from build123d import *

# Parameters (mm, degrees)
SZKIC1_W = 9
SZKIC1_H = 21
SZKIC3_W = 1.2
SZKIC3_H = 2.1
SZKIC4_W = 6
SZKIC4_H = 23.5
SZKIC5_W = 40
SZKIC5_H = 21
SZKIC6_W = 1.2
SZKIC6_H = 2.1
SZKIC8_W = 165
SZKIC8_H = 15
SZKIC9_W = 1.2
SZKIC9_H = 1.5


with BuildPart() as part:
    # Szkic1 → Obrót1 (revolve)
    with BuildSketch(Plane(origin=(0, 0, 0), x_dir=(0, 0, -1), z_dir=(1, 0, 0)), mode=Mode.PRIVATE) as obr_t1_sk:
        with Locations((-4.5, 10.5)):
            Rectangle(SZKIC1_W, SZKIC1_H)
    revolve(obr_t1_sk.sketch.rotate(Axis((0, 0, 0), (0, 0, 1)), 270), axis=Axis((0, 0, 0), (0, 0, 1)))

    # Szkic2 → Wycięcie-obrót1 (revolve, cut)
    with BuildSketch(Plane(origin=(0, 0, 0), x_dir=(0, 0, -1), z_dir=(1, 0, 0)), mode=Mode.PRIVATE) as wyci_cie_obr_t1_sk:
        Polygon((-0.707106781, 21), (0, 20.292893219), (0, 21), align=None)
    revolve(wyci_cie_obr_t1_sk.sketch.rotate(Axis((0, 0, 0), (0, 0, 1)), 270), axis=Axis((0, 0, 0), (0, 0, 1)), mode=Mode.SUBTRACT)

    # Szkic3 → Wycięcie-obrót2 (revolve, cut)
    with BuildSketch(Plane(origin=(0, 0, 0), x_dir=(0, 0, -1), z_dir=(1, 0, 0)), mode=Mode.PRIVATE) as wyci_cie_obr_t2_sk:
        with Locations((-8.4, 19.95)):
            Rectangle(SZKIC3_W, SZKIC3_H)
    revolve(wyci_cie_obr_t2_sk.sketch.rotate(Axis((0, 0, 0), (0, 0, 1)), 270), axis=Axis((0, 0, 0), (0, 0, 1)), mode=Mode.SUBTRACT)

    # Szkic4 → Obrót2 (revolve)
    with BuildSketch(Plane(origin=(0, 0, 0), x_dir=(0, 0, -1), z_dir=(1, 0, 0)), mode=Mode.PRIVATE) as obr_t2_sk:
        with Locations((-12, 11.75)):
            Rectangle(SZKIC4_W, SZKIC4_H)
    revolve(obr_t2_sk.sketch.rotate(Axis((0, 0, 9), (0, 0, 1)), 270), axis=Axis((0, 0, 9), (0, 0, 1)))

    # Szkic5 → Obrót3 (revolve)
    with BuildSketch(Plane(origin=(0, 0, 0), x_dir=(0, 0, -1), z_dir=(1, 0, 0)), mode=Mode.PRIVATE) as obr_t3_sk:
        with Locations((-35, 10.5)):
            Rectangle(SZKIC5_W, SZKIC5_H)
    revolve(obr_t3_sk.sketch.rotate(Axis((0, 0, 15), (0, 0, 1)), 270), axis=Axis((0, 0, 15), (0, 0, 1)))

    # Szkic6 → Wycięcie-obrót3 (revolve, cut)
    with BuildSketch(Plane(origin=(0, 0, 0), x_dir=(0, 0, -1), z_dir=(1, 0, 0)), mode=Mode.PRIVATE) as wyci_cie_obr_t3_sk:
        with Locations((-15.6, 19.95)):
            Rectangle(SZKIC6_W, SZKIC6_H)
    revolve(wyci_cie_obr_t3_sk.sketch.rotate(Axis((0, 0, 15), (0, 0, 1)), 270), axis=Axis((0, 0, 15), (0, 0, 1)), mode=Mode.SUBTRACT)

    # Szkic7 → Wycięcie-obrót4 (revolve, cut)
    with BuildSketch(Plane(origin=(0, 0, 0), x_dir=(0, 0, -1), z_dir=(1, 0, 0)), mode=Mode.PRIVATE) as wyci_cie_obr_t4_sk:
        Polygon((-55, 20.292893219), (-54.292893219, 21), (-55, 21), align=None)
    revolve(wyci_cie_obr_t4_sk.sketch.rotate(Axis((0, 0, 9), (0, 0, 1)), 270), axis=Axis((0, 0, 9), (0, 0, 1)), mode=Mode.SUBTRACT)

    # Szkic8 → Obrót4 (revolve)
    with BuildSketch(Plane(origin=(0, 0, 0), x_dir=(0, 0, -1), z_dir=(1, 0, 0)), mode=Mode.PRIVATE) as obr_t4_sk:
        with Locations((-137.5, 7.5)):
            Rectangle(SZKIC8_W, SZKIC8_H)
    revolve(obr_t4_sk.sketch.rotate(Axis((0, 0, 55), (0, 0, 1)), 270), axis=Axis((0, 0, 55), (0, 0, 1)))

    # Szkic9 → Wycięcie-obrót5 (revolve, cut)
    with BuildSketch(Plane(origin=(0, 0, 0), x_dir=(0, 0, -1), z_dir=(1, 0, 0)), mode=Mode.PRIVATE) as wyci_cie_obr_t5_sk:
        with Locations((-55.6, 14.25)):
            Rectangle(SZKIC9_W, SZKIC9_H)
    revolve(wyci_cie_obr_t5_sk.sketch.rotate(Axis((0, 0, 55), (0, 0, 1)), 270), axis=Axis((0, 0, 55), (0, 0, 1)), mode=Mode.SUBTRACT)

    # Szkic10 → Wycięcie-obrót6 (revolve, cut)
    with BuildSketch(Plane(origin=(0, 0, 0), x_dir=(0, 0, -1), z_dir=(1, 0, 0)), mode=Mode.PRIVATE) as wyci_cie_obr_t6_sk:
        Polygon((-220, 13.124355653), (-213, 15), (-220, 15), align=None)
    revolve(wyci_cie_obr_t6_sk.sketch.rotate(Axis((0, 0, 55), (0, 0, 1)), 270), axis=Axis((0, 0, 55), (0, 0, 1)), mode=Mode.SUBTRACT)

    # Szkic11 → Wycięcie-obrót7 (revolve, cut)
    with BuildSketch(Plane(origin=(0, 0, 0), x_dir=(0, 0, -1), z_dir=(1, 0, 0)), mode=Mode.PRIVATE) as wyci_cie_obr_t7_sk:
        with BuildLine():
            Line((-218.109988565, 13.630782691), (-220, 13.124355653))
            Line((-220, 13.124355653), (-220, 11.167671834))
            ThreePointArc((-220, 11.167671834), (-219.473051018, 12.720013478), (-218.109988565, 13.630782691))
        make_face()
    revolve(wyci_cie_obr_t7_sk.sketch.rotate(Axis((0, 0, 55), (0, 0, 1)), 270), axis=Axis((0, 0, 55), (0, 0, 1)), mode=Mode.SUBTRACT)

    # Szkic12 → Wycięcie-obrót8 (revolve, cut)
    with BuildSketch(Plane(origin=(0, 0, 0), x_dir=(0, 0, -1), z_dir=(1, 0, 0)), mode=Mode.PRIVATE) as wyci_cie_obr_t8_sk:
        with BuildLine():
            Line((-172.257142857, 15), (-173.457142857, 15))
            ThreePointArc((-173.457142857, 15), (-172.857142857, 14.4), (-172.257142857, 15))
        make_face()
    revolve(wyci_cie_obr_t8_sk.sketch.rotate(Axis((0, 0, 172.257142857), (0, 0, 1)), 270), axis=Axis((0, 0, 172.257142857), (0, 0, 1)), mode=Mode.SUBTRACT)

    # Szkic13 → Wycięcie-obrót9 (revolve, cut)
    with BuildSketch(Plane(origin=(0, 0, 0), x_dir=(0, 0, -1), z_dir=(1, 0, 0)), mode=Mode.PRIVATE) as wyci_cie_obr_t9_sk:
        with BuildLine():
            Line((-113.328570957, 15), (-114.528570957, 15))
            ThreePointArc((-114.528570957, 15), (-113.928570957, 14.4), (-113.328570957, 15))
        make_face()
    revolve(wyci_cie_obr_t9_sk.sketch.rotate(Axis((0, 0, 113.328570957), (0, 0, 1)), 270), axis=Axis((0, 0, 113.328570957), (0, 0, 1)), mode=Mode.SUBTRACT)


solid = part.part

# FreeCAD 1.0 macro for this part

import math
import FreeCAD as App
import Part
import Sketcher
from FreeCAD import Vector
Q = App.Units.Quantity


def add_polygon(sketch, points):
    """Adds a closed chain of lines whose ends are joined by coincident constraints."""
    first, n = sketch.GeometryCount, len(points)
    for a, b in zip(points, points[1:] + points[:1]):
        sketch.addGeometry(Part.LineSegment(App.Vector(*a, 0), App.Vector(*b, 0)), False)
    for i in range(n):
        sketch.addConstraint(Sketcher.Constraint("Coincident", first + i, 2, first + (i + 1) % n, 1))

doc = App.newDocument("Part")
body = doc.addObject("PartDesign::Body", "Body")

# Sketch on YZ plane
sketch1 = body.newObject("Sketcher::SketchObject", "Sketch")
sketch1.AttachmentSupport = (doc.getObject("YZ_Plane"), [""])
sketch1.MapMode = "FlatFace"
add_polygon(sketch1, [(21, 9), (0, 9), (0, 0), (21, 0)])  # lines 0-3
sketch1.addConstraint(Sketcher.Constraint("Horizontal", 0))
sketch1.addConstraint(Sketcher.Constraint("Vertical", 1))
sketch1.addConstraint(Sketcher.Constraint("Horizontal", 2))
sketch1.addConstraint(Sketcher.Constraint("Vertical", 3))
sketch1.addConstraint(Sketcher.Constraint("Coincident", 1, 2, -1, 1))
sketch1.addConstraint(Sketcher.Constraint("DistanceX", 0, 2, 0, 1, Q("21 mm")))
sketch1.addConstraint(Sketcher.Constraint("DistanceY", 1, 2, 1, 1, Q("9 mm")))
revolution = body.newObject("PartDesign::Revolution", "Revolution")
revolution.Profile = sketch1
revolution.ReferenceAxis = (sketch1, ["V_Axis"])
revolution.Angle = 360

# Sketch on YZ plane
sketch2 = body.newObject("Sketcher::SketchObject", "Sketch001")
sketch2.AttachmentSupport = (doc.getObject("YZ_Plane"), [""])
sketch2.MapMode = "FlatFace"
add_polygon(sketch2, [(21, 0.707107), (20.292893, 0), (21, 0)])  # lines 0-2
sketch2.addConstraint(Sketcher.Constraint("Horizontal", 1))
sketch2.addConstraint(Sketcher.Constraint("Vertical", 2))
sketch2.addConstraint(Sketcher.Constraint("PointOnObject", 0, 2, -1))
sketch2.addConstraint(Sketcher.Constraint("Equal", 1, 2))
sketch2.addConstraint(Sketcher.Constraint("Distance", 0, Q("1 mm")))
sketch2.addConstraint(Sketcher.Constraint("DistanceX", -1, 1, 1, 2, Q("21 mm")))
groove = body.newObject("PartDesign::Groove", "Groove")
groove.Profile = sketch2
groove.ReferenceAxis = (sketch2, ["V_Axis"])
groove.Angle = 360

# Sketch on YZ plane
sketch3 = body.newObject("Sketcher::SketchObject", "Sketch002")
sketch3.AttachmentSupport = (doc.getObject("YZ_Plane"), [""])
sketch3.MapMode = "FlatFace"
add_polygon(sketch3, [(21, 9), (18.9, 9), (18.9, 7.8), (21, 7.8)])  # lines 0-3
sketch3.addConstraint(Sketcher.Constraint("Horizontal", 0))
sketch3.addConstraint(Sketcher.Constraint("Vertical", 1))
sketch3.addConstraint(Sketcher.Constraint("Horizontal", 2))
sketch3.addConstraint(Sketcher.Constraint("Vertical", 3))
sketch3.addConstraint(Sketcher.Constraint("DistanceX", 0, 2, 0, 1, Q("2.1 mm")))
sketch3.addConstraint(Sketcher.Constraint("DistanceY", 1, 2, 1, 1, Q("1.2 mm")))
sketch3.addConstraint(Sketcher.Constraint("DistanceY", -1, 1, 0, 2, Q("9 mm")))
sketch3.addConstraint(Sketcher.Constraint("DistanceX", -1, 1, 2, 2, Q("21 mm")))
groove2 = body.newObject("PartDesign::Groove", "Groove001")
groove2.Profile = sketch3
groove2.ReferenceAxis = (sketch3, ["V_Axis"])
groove2.Angle = 360

# Sketch on YZ plane
sketch4 = body.newObject("Sketcher::SketchObject", "Sketch003")
sketch4.AttachmentSupport = (doc.getObject("YZ_Plane"), [""])
sketch4.MapMode = "FlatFace"
add_polygon(sketch4, [(23.5, 15), (0, 15), (0, 9), (23.5, 9)])  # lines 0-3
sketch4.addConstraint(Sketcher.Constraint("Horizontal", 0))
sketch4.addConstraint(Sketcher.Constraint("Vertical", 1))
sketch4.addConstraint(Sketcher.Constraint("Horizontal", 2))
sketch4.addConstraint(Sketcher.Constraint("Vertical", 3))
sketch4.addConstraint(Sketcher.Constraint("PointOnObject", 0, 2, -2))
sketch4.addConstraint(Sketcher.Constraint("DistanceY", 1, 2, 1, 1, Q("6 mm")))
sketch4.addConstraint(Sketcher.Constraint("DistanceX", 0, 2, 0, 1, Q("23.5 mm")))
sketch4.addConstraint(Sketcher.Constraint("DistanceY", -1, 1, 0, 2, Q("15 mm")))
revolution2 = body.newObject("PartDesign::Revolution", "Revolution001")
revolution2.Profile = sketch4
revolution2.ReferenceAxis = (sketch4, ["V_Axis"])
revolution2.Angle = 360

# Sketch on YZ plane
sketch5 = body.newObject("Sketcher::SketchObject", "Sketch004")
sketch5.AttachmentSupport = (doc.getObject("YZ_Plane"), [""])
sketch5.MapMode = "FlatFace"
add_polygon(sketch5, [(21, 55), (0, 55), (0, 15), (21, 15)])  # lines 0-3
sketch5.addConstraint(Sketcher.Constraint("Horizontal", 0))
sketch5.addConstraint(Sketcher.Constraint("Vertical", 1))
sketch5.addConstraint(Sketcher.Constraint("Horizontal", 2))
sketch5.addConstraint(Sketcher.Constraint("Vertical", 3))
sketch5.addConstraint(Sketcher.Constraint("PointOnObject", 0, 2, -2))
sketch5.addConstraint(Sketcher.Constraint("DistanceX", 0, 2, 0, 1, Q("21 mm")))
sketch5.addConstraint(Sketcher.Constraint("DistanceY", 1, 2, 1, 1, Q("40 mm")))
sketch5.addConstraint(Sketcher.Constraint("DistanceY", -1, 1, 0, 2, Q("55 mm")))
revolution3 = body.newObject("PartDesign::Revolution", "Revolution002")
revolution3.Profile = sketch5
revolution3.ReferenceAxis = (sketch5, ["V_Axis"])
revolution3.Angle = 360

# Sketch on YZ plane
sketch6 = body.newObject("Sketcher::SketchObject", "Sketch005")
sketch6.AttachmentSupport = (doc.getObject("YZ_Plane"), [""])
sketch6.MapMode = "FlatFace"
add_polygon(sketch6, [(21, 16.2), (18.9, 16.2), (18.9, 15), (21, 15)])  # lines 0-3
sketch6.addConstraint(Sketcher.Constraint("Horizontal", 0))
sketch6.addConstraint(Sketcher.Constraint("Vertical", 1))
sketch6.addConstraint(Sketcher.Constraint("Horizontal", 2))
sketch6.addConstraint(Sketcher.Constraint("Vertical", 3))
sketch6.addConstraint(Sketcher.Constraint("DistanceX", 0, 2, 0, 1, Q("2.1 mm")))
sketch6.addConstraint(Sketcher.Constraint("DistanceY", 1, 2, 1, 1, Q("1.2 mm")))
sketch6.addConstraint(Sketcher.Constraint("DistanceY", -1, 1, 1, 2, Q("15 mm")))
sketch6.addConstraint(Sketcher.Constraint("DistanceX", -1, 1, 2, 2, Q("21 mm")))
groove3 = body.newObject("PartDesign::Groove", "Groove002")
groove3.Profile = sketch6
groove3.ReferenceAxis = (sketch6, ["V_Axis"])
groove3.Angle = 360

# Sketch on YZ plane
sketch7 = body.newObject("Sketcher::SketchObject", "Sketch006")
sketch7.AttachmentSupport = (doc.getObject("YZ_Plane"), [""])
sketch7.MapMode = "FlatFace"
add_polygon(sketch7, [(20.292893, 55), (21, 54.292893), (21, 55)])  # lines 0-2
sketch7.addConstraint(Sketcher.Constraint("Vertical", 1))
sketch7.addConstraint(Sketcher.Constraint("Horizontal", 2))
sketch7.addConstraint(Sketcher.Constraint("Equal", 2, 1))
sketch7.addConstraint(Sketcher.Constraint("Distance", 0, Q("1 mm")))
sketch7.addConstraint(Sketcher.Constraint("DistanceX", -1, 1, 0, 2, Q("21 mm")))
sketch7.addConstraint(Sketcher.Constraint("DistanceY", -1, 1, 1, 2, Q("55 mm")))
groove4 = body.newObject("PartDesign::Groove", "Groove003")
groove4.Profile = sketch7
groove4.ReferenceAxis = (sketch7, ["V_Axis"])
groove4.Angle = 360

# Sketch on YZ plane
sketch8 = body.newObject("Sketcher::SketchObject", "Sketch007")
sketch8.AttachmentSupport = (doc.getObject("YZ_Plane"), [""])
sketch8.MapMode = "FlatFace"
add_polygon(sketch8, [(15, 220), (0, 220), (0, 55), (15, 55)])  # lines 0-3
sketch8.addConstraint(Sketcher.Constraint("Horizontal", 0))
sketch8.addConstraint(Sketcher.Constraint("Vertical", 1))
sketch8.addConstraint(Sketcher.Constraint("Horizontal", 2))
sketch8.addConstraint(Sketcher.Constraint("Vertical", 3))
sketch8.addConstraint(Sketcher.Constraint("PointOnObject", 0, 2, -2))
sketch8.addConstraint(Sketcher.Constraint("DistanceX", 0, 2, 0, 1, Q("15 mm")))
sketch8.addConstraint(Sketcher.Constraint("DistanceY", 1, 2, 1, 1, Q("165 mm")))
sketch8.addConstraint(Sketcher.Constraint("DistanceY", -1, 1, 0, 2, Q("220 mm")))
revolution4 = body.newObject("PartDesign::Revolution", "Revolution003")
revolution4.Profile = sketch8
revolution4.ReferenceAxis = (sketch8, ["V_Axis"])
revolution4.Angle = 360

# Sketch on YZ plane
sketch9 = body.newObject("Sketcher::SketchObject", "Sketch008")
sketch9.AttachmentSupport = (doc.getObject("YZ_Plane"), [""])
sketch9.MapMode = "FlatFace"
add_polygon(sketch9, [(15, 56.2), (13.5, 56.2), (13.5, 55), (15, 55)])  # lines 0-3
sketch9.addConstraint(Sketcher.Constraint("Horizontal", 0))
sketch9.addConstraint(Sketcher.Constraint("Vertical", 1))
sketch9.addConstraint(Sketcher.Constraint("Horizontal", 2))
sketch9.addConstraint(Sketcher.Constraint("Vertical", 3))
sketch9.addConstraint(Sketcher.Constraint("DistanceX", 0, 2, 0, 1, Q("1.5 mm")))
sketch9.addConstraint(Sketcher.Constraint("DistanceY", 1, 2, 1, 1, Q("1.2 mm")))
sketch9.addConstraint(Sketcher.Constraint("DistanceY", -1, 1, 1, 2, Q("55 mm")))
sketch9.addConstraint(Sketcher.Constraint("DistanceX", -1, 1, 2, 2, Q("15 mm")))
groove5 = body.newObject("PartDesign::Groove", "Groove004")
groove5.Profile = sketch9
groove5.ReferenceAxis = (sketch9, ["V_Axis"])
groove5.Angle = 360

# Sketch on YZ plane
sketch10 = body.newObject("Sketcher::SketchObject", "Sketch009")
sketch10.AttachmentSupport = (doc.getObject("YZ_Plane"), [""])
sketch10.MapMode = "FlatFace"
add_polygon(sketch10, [(13.124356, 220), (15, 213), (15, 220)])  # lines 0-2
sketch10.addConstraint(Sketcher.Constraint("Vertical", 1))
sketch10.addConstraint(Sketcher.Constraint("Horizontal", 2))
sketch10.addConstraint(Sketcher.Constraint("DistanceY", 1, 1, 1, 2, Q("7 mm")))
sketch10.addConstraint(Sketcher.Constraint("Angle", 0, Q("-75 deg")))
sketch10.addConstraint(Sketcher.Constraint("DistanceX", -1, 1, 0, 2, Q("15 mm")))
sketch10.addConstraint(Sketcher.Constraint("DistanceY", -1, 1, 0, 2, Q("213 mm")))
groove6 = body.newObject("PartDesign::Groove", "Groove005")
groove6.Profile = sketch10
groove6.ReferenceAxis = (sketch10, ["V_Axis"])
groove6.Angle = 360

# Sketch on YZ plane
sketch11 = body.newObject("Sketcher::SketchObject", "Sketch010")
sketch11.AttachmentSupport = (doc.getObject("YZ_Plane"), [""])
sketch11.MapMode = "FlatFace"
sketch11.addGeometry(Part.LineSegment(Vector(13.630783, 218.109989, 0), Vector(13.124356, 220, 0)), False)
sketch11.addGeometry(Part.LineSegment(Vector(13.124356, 220, 0), Vector(11.167672, 220, 0)), False)
sketch11.addGeometry(Part.ArcOfCircle(Part.Circle(Vector(11.167672, 217.45, 0), Vector(0, 0, 1), 2.55), math.radians(15), math.radians(90)), False)
sketch11.addConstraint(Sketcher.Constraint("Coincident", 0, 2, 1, 1))
sketch11.addConstraint(Sketcher.Constraint("Tangent", 1, 2, 2, 2))
sketch11.addConstraint(Sketcher.Constraint("Tangent", 2, 1, 0, 1))
sketch11.addConstraint(Sketcher.Constraint("Horizontal", 1))
sketch11.addConstraint(Sketcher.Constraint("Angle", 0, Q("105 deg")))
sketch11.addConstraint(Sketcher.Constraint("Radius", 2, Q("2.55 mm")))
sketch11.addConstraint(Sketcher.Constraint("DistanceY", -1, 1, 0, 2, Q("220 mm")))
sketch11.addConstraint(Sketcher.Constraint("DistanceX", -1, 1, 2, 3, Q("11.167672 mm")))
groove7 = body.newObject("PartDesign::Groove", "Groove006")
groove7.Profile = sketch11
groove7.ReferenceAxis = (sketch11, ["V_Axis"])
groove7.Angle = 360

# Sketch on YZ plane
sketch12 = body.newObject("Sketcher::SketchObject", "Sketch011")
sketch12.AttachmentSupport = (doc.getObject("YZ_Plane"), [""])
sketch12.MapMode = "FlatFace"
sketch12.addGeometry(Part.LineSegment(Vector(15, 172.257143, 0), Vector(15, 173.457143, 0)), False)
sketch12.addGeometry(Part.ArcOfCircle(Part.Circle(Vector(15, 172.857143, 0), Vector(0, 0, 1), 0.6), math.radians(90), math.radians(270)), False)
sketch12.addConstraint(Sketcher.Constraint("Coincident", 0, 1, 1, 2))
sketch12.addConstraint(Sketcher.Constraint("Coincident", 1, 1, 0, 2))
sketch12.addConstraint(Sketcher.Constraint("Vertical", 0))
sketch12.addConstraint(Sketcher.Constraint("Vertical", 1, 3, 0, 1))
sketch12.addConstraint(Sketcher.Constraint("Radius", 1, Q("0.6 mm")))
sketch12.addConstraint(Sketcher.Constraint("DistanceX", -1, 1, 1, 3, Q("15 mm")))
sketch12.addConstraint(Sketcher.Constraint("DistanceY", -1, 1, 1, 3, Q("172.857143 mm")))
groove8 = body.newObject("PartDesign::Groove", "Groove007")
groove8.Profile = sketch12
groove8.ReferenceAxis = (sketch12, ["V_Axis"])
groove8.Angle = 360

# Sketch on YZ plane
sketch13 = body.newObject("Sketcher::SketchObject", "Sketch012")
sketch13.AttachmentSupport = (doc.getObject("YZ_Plane"), [""])
sketch13.MapMode = "FlatFace"
sketch13.addGeometry(Part.LineSegment(Vector(15, 113.328571, 0), Vector(15, 114.528571, 0)), False)
sketch13.addGeometry(Part.ArcOfCircle(Part.Circle(Vector(15, 113.928571, 0), Vector(0, 0, 1), 0.6), math.radians(90), math.radians(270)), False)
sketch13.addConstraint(Sketcher.Constraint("Coincident", 0, 1, 1, 2))
sketch13.addConstraint(Sketcher.Constraint("Coincident", 1, 1, 0, 2))
sketch13.addConstraint(Sketcher.Constraint("Vertical", 0))
sketch13.addConstraint(Sketcher.Constraint("Vertical", 1, 3, 0, 1))
sketch13.addConstraint(Sketcher.Constraint("Radius", 1, Q("0.6 mm")))
sketch13.addConstraint(Sketcher.Constraint("DistanceX", -1, 1, 1, 3, Q("15 mm")))
sketch13.addConstraint(Sketcher.Constraint("DistanceY", -1, 1, 1, 3, Q("113.928571 mm")))
groove9 = body.newObject("PartDesign::Groove", "Groove008")
groove9.Profile = sketch13
groove9.ReferenceAxis = (sketch13, ["V_Axis"])
groove9.Angle = 360

doc.recompute()
